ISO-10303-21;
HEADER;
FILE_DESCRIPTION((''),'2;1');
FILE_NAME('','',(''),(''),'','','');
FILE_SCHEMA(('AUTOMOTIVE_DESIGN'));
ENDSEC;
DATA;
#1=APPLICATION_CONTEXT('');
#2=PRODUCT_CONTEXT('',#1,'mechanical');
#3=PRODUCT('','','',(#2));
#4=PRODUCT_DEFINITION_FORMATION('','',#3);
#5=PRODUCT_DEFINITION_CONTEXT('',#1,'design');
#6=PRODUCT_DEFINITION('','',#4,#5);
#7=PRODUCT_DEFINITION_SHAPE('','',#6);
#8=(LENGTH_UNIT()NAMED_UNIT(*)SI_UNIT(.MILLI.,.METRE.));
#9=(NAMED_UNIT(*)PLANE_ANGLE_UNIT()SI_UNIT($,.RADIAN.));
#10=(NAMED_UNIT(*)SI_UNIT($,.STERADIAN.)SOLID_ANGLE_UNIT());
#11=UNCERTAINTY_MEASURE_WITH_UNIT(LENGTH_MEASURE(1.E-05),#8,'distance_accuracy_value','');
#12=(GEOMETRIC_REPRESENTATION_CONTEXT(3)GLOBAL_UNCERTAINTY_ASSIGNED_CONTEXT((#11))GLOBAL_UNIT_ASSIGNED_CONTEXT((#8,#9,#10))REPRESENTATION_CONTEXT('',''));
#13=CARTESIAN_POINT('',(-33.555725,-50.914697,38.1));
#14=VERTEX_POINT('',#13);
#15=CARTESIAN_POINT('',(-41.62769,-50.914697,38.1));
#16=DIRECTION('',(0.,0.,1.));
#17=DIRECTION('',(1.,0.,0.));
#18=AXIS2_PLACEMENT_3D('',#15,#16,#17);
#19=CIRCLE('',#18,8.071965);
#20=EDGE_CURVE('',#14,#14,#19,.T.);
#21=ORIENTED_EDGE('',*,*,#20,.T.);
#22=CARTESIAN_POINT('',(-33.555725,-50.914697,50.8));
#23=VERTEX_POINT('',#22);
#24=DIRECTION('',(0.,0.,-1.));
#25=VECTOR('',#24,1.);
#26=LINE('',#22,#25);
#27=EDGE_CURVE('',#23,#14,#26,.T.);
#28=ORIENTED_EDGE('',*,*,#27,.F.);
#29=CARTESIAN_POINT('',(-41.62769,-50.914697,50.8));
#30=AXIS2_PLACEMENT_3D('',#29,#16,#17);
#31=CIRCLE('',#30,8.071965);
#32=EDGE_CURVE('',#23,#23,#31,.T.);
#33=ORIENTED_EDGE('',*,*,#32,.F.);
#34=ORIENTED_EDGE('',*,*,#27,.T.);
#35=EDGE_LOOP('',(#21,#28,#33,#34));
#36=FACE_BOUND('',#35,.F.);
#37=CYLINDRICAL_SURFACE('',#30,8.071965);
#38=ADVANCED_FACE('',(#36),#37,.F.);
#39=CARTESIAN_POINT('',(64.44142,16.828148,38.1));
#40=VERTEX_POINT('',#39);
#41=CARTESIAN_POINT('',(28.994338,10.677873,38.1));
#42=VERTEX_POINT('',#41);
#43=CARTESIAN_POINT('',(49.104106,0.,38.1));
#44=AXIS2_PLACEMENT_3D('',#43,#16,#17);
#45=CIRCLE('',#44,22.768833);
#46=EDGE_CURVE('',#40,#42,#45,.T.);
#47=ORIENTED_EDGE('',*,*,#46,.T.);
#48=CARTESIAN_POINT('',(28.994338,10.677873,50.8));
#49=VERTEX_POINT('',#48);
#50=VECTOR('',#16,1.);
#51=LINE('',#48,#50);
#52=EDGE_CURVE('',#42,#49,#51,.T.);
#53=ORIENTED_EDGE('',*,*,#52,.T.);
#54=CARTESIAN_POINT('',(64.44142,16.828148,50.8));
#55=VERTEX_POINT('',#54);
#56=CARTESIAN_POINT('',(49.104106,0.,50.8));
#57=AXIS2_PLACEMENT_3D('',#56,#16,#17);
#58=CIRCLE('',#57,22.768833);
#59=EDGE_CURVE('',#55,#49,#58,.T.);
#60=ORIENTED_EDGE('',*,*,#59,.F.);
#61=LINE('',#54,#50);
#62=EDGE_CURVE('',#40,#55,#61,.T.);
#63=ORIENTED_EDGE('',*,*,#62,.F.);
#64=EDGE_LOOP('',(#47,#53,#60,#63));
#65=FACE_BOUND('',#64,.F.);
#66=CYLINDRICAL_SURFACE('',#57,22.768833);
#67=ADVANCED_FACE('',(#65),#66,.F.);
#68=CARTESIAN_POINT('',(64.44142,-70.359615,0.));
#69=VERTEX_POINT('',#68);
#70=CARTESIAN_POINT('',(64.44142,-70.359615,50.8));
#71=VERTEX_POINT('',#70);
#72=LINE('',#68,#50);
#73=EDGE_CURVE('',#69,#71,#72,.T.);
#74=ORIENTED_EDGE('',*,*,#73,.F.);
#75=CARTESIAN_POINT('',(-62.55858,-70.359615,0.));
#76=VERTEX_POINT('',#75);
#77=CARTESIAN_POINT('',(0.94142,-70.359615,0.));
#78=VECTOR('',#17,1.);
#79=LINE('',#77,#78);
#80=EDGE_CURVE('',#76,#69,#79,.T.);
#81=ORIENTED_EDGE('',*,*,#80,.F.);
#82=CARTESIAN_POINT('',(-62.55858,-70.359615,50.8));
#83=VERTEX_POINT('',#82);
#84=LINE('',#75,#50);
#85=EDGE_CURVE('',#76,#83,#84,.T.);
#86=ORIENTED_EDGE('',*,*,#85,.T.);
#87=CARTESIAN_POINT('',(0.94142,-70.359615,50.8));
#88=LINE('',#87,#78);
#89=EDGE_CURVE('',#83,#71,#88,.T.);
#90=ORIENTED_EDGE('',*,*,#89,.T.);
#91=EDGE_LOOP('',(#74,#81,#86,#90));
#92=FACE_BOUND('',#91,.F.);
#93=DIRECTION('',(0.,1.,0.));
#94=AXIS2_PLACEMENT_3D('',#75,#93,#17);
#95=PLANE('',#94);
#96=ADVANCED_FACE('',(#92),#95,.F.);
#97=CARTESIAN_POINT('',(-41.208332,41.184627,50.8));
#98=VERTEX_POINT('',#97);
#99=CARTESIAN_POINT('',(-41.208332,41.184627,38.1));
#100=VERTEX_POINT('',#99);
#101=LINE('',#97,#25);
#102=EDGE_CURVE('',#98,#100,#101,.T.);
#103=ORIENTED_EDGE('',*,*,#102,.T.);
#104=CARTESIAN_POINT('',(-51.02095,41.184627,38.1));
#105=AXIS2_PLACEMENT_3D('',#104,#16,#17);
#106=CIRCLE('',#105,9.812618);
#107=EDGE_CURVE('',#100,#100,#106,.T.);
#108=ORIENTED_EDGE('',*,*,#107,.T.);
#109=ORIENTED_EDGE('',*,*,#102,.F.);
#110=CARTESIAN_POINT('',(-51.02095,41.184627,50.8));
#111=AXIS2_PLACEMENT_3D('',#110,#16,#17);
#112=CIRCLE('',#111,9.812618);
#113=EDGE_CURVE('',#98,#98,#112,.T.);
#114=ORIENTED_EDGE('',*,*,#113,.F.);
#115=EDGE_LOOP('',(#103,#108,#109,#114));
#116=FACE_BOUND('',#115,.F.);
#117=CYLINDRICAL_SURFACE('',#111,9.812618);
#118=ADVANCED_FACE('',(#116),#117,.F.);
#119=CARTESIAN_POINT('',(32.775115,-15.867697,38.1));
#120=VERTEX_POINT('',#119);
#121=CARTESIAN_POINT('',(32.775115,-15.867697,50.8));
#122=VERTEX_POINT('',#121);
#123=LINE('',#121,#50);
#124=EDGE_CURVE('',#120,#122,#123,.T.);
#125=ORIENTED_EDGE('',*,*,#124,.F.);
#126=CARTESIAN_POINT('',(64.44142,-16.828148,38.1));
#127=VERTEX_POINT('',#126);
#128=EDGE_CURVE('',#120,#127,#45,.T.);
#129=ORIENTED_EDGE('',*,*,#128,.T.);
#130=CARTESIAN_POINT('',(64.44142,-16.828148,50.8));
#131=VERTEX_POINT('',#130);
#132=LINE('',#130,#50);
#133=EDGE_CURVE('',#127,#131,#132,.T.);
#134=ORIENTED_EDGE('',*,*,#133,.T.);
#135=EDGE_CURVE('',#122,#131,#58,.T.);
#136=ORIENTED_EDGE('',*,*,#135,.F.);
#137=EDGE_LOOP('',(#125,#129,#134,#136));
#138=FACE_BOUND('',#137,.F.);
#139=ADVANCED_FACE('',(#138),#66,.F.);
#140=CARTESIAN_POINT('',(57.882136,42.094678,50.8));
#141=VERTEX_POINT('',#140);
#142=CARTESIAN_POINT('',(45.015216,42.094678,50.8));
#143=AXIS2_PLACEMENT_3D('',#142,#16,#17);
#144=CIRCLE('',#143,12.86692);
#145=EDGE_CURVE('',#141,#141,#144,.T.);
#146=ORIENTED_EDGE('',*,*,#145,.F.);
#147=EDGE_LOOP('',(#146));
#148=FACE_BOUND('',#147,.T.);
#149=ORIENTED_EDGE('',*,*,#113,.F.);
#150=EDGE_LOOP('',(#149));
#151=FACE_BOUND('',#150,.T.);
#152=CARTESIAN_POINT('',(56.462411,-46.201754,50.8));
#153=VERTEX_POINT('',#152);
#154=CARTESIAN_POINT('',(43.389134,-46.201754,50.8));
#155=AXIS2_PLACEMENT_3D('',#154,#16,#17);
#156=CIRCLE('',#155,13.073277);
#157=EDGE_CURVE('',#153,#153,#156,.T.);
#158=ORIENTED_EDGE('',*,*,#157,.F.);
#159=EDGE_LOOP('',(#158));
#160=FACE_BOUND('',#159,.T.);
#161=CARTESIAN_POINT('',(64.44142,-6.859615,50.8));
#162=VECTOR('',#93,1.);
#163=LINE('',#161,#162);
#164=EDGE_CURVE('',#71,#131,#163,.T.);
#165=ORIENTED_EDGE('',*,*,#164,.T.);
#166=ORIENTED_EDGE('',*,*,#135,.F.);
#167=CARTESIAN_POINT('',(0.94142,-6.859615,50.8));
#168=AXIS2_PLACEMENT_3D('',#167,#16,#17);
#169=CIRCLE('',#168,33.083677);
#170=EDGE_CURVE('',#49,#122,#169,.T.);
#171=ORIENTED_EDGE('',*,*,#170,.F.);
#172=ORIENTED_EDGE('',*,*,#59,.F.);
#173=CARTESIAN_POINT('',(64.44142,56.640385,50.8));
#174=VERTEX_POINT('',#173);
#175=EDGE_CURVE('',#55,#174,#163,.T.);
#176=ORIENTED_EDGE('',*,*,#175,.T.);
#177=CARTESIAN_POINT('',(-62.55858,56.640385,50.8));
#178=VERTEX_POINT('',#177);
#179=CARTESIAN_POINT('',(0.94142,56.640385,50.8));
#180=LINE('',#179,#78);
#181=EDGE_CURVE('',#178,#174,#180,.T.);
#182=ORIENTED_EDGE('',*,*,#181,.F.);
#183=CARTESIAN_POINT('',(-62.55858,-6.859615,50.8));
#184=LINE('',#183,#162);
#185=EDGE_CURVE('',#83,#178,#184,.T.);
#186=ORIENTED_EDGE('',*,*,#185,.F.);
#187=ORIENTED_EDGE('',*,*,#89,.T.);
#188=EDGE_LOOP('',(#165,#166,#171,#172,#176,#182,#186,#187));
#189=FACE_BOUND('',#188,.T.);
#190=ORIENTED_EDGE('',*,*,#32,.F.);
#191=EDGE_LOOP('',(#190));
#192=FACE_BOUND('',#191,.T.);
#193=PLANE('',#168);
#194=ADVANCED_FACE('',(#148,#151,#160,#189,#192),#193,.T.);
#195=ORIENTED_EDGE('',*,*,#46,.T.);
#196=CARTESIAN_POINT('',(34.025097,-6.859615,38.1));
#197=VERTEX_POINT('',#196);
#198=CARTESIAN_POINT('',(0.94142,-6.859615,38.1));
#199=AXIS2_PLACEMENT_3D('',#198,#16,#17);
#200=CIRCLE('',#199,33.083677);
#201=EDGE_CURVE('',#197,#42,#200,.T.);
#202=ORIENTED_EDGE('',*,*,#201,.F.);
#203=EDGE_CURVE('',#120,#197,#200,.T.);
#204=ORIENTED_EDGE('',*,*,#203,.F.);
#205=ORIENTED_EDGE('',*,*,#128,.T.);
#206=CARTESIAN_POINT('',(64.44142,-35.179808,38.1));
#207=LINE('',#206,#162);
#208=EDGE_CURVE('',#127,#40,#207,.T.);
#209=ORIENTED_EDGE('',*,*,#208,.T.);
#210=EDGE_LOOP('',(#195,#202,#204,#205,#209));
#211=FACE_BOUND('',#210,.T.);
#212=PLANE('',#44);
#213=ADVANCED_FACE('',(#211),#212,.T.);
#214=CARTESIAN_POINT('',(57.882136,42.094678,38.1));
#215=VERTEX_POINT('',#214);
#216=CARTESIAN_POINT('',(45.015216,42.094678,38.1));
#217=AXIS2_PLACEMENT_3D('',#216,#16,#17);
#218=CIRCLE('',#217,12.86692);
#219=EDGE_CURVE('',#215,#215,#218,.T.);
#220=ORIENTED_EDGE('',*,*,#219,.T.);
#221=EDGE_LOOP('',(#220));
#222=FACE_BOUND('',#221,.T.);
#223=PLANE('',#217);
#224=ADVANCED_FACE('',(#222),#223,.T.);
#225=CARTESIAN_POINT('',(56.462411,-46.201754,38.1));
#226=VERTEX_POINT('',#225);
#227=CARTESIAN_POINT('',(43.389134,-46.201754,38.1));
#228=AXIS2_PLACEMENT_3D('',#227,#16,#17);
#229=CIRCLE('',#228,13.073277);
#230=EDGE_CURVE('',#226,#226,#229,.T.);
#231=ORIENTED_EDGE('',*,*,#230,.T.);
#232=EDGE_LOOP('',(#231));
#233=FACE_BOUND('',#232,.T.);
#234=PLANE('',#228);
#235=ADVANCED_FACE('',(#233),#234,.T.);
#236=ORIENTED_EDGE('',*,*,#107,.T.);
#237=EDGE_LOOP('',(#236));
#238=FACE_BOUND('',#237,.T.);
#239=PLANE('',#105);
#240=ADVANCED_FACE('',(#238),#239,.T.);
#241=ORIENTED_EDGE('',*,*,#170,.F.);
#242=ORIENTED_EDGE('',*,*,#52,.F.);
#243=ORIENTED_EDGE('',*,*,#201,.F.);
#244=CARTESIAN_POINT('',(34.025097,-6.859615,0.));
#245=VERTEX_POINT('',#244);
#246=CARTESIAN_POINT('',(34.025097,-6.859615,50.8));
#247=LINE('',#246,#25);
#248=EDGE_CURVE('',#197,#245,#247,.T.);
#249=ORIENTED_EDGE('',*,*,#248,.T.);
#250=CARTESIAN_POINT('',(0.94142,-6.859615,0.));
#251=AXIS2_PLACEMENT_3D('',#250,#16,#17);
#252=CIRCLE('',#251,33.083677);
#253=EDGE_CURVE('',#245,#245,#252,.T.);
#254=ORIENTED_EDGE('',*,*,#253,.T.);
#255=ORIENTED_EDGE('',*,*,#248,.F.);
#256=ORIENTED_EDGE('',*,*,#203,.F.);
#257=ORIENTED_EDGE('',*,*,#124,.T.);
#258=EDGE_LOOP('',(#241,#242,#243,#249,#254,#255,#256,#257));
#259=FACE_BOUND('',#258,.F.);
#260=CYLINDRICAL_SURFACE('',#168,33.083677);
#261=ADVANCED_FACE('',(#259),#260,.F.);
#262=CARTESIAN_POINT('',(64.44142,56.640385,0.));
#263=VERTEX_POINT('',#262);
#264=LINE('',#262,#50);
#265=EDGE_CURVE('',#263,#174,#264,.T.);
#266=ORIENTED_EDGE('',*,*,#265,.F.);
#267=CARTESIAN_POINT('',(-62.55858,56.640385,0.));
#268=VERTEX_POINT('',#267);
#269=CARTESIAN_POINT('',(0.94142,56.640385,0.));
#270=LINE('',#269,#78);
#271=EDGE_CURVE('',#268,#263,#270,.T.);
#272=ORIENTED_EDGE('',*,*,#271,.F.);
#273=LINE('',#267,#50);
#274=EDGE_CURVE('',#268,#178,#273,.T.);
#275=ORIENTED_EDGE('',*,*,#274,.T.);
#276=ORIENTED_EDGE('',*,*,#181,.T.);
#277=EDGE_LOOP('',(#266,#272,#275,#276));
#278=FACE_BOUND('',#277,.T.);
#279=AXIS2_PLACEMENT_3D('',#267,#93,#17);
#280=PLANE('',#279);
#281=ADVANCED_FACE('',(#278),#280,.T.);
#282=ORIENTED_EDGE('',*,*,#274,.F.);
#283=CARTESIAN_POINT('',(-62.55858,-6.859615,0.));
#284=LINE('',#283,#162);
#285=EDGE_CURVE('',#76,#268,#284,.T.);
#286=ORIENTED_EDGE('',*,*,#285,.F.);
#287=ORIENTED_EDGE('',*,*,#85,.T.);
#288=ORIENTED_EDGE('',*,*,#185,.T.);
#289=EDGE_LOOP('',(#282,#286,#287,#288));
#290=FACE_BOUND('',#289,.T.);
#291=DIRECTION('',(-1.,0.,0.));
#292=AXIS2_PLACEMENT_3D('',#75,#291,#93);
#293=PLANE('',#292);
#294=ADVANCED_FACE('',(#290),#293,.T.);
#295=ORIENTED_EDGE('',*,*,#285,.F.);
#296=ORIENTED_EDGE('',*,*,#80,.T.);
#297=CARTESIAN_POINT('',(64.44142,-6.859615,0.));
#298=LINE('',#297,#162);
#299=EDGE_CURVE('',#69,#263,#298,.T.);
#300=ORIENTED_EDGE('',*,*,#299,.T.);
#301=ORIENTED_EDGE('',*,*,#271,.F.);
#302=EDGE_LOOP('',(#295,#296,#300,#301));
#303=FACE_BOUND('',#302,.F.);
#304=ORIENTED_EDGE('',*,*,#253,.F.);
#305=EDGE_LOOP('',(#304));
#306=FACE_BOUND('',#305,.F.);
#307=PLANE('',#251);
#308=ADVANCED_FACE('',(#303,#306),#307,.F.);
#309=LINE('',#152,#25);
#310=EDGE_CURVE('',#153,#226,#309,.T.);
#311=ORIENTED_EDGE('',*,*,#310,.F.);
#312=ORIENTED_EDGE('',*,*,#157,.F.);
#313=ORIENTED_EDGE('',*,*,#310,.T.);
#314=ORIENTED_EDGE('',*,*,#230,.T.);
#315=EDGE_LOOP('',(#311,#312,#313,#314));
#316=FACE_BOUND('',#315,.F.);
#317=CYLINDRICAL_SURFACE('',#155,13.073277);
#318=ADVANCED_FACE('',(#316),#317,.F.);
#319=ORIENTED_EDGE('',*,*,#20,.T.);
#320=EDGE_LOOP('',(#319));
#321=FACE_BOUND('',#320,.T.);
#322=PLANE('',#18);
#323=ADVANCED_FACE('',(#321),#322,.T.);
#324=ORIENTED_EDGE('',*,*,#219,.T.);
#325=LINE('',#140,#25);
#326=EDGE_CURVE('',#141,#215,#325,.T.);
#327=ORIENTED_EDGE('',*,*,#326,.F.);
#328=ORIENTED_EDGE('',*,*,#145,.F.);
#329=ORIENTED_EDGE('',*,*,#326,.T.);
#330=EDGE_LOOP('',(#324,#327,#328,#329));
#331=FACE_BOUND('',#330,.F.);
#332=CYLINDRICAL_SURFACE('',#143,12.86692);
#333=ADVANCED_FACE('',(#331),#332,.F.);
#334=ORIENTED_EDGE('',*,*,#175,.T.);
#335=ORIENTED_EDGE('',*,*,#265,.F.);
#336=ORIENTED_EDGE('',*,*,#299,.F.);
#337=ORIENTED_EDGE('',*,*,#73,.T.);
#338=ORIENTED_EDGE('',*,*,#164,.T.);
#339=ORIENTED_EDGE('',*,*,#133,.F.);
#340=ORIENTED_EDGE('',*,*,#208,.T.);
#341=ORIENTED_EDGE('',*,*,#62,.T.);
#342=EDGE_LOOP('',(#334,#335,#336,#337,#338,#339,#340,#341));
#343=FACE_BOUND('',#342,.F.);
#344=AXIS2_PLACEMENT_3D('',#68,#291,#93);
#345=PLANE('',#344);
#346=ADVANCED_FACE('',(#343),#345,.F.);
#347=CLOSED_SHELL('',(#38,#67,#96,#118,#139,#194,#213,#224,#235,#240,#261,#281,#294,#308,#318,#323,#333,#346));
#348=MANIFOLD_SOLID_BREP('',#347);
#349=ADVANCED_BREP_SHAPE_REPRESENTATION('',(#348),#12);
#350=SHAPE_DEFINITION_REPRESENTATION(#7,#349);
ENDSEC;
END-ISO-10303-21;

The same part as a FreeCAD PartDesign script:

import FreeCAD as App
import Part
import Sketcher

V = App.Vector
Q = App.Units.Quantity

doc = App.newDocument("Part")
body = doc.addObject("PartDesign::Body", "Body")

# Sketch on XY plane
sketch1 = body.newObject("Sketcher::SketchObject", "Sketch")
sketch1.AttachmentSupport = (doc.getObject("XY_Plane"), [""])
sketch1.MapMode = "FlatFace"
sketch1.addGeometry(Part.LineSegment(V(-63, 57, 0), V(-63, -70, 0)), False)
sketch1.addGeometry(Part.LineSegment(V(-63, -70, 0), V(64, -70, 0)), False)
sketch1.addGeometry(Part.LineSegment(V(64, -70, 0), V(64, 57, 0)), False)
sketch1.addGeometry(Part.LineSegment(V(64, 57, 0), V(-63, 57, 0)), False)
sketch1.addConstraint(Sketcher.Constraint("Coincident", 0, 2, 1, 1))
sketch1.addConstraint(Sketcher.Constraint("Coincident", 1, 2, 2, 1))
sketch1.addConstraint(Sketcher.Constraint("Coincident", 2, 2, 3, 1))
sketch1.addConstraint(Sketcher.Constraint("Coincident", 3, 2, 0, 1))
sketch1.addConstraint(Sketcher.Constraint("Vertical", 0))
sketch1.addConstraint(Sketcher.Constraint("Horizontal", 1))
sketch1.addConstraint(Sketcher.Constraint("Vertical", 2))
sketch1.addConstraint(Sketcher.Constraint("Horizontal", 3))
sketch1.addConstraint(Sketcher.Constraint("Equal", 3, 0))
sketch1.addConstraint(Sketcher.Constraint("DistanceX", 1, 1, 1, 2, Q("5 in")))
sketch1.addConstraint(Sketcher.Constraint("DistanceX", 0, 2, -1, 1, Q("62.55858 mm")))
sketch1.addConstraint(Sketcher.Constraint("DistanceY", 0, 2, -1, 1, Q("70.359615 mm")))
pad1 = body.newObject("PartDesign::Pad", "Pad")
pad1.Profile = sketch1
pad1.Length = Q("2 in")

# Sketch on XY plane
sketch2 = body.newObject("Sketcher::SketchObject", "Sketch001")
sketch2.AttachmentSupport = (doc.getObject("XY_Plane"), [""])
sketch2.MapMode = "FlatFace"
sketch2.AttachmentOffset = App.Placement(V(0, 0, 2 * 25.4), App.Rotation())
sketch2.addGeometry(Part.Circle(V(1, -7, 0), V(0, 0, 1), 33), False)
sketch2.addConstraint(Sketcher.Constraint("Diameter", 0, Q("66.167354 mm")))
sketch2.addConstraint(Sketcher.Constraint("DistanceX", -1, 1, 0, 3, Q("0.94142 mm")))
sketch2.addConstraint(Sketcher.Constraint("DistanceY", 0, 3, -1, 1, Q("6.859615 mm")))
pocket1 = body.newObject("PartDesign::Pocket", "Pocket")
pocket1.Profile = sketch2
pocket1.Type = "ThroughAll"

# Sketch on XY plane
sketch3 = body.newObject("Sketcher::SketchObject", "Sketch002")
sketch3.AttachmentSupport = (doc.getObject("XY_Plane"), [""])
sketch3.MapMode = "FlatFace"
sketch3.AttachmentOffset = App.Placement(V(0, 0, 2 * 25.4), App.Rotation())
sketch3.addGeometry(Part.Circle(V(-51, 41, 0), V(0, 0, 1), 10), False)
sketch3.addGeometry(Part.Circle(V(45, 42, 0), V(0, 0, 1), 13), False)
sketch3.addGeometry(Part.Circle(V(-42, -51, 0), V(0, 0, 1), 8), False)
sketch3.addGeometry(Part.Circle(V(43, -46, 0), V(0, 0, 1), 13), False)
sketch3.addGeometry(Part.Circle(V(49, 0, 0), V(0, 0, 1), 23), False)
sketch3.addConstraint(Sketcher.Constraint("PointOnObject", 4, 3, -1))
sketch3.addConstraint(Sketcher.Constraint("Diameter", 1, Q("25.73384 mm")))
sketch3.addConstraint(Sketcher.Constraint("Diameter", 2, Q("16.14393 mm")))
sketch3.addConstraint(Sketcher.Constraint("Diameter", 0, Q("19.625236 mm")))
sketch3.addConstraint(Sketcher.Constraint("Diameter", 3, Q("26.146554 mm")))
sketch3.addConstraint(Sketcher.Constraint("Diameter", 4, Q("45.537666 mm")))
sketch3.addConstraint(Sketcher.Constraint("DistanceX", 0, 3, -1, 1, Q("51.02095 mm")))
sketch3.addConstraint(Sketcher.Constraint("DistanceY", -1, 1, 1, 3, Q("42.094678 mm")))
sketch3.addConstraint(Sketcher.Constraint("DistanceX", 2, 3, -1, 1, Q("41.62769 mm")))
sketch3.addConstraint(Sketcher.Constraint("DistanceY", 0, 3, 1, 3, Q("0.910051 mm")))
sketch3.addConstraint(Sketcher.Constraint("DistanceY", 3, 3, 0, 3, Q("87.386381 mm")))
sketch3.addConstraint(Sketcher.Constraint("DistanceX", 1, 3, 4, 3, Q("4.08889 mm")))
sketch3.addConstraint(Sketcher.Constraint("DistanceX", -1, 1, 1, 3, Q("45.015216 mm")))
sketch3.addConstraint(Sketcher.Constraint("DistanceY", 2, 3, -1, 1, Q("50.914697 mm")))
sketch3.addConstraint(Sketcher.Constraint("DistanceX", -1, 1, 3, 3, Q("43.389134 mm")))
pocket2 = body.newObject("PartDesign::Pocket", "Pocket001")
pocket2.Profile = sketch3
pocket2.Length = Q("0.5 in")

doc.recompute()
